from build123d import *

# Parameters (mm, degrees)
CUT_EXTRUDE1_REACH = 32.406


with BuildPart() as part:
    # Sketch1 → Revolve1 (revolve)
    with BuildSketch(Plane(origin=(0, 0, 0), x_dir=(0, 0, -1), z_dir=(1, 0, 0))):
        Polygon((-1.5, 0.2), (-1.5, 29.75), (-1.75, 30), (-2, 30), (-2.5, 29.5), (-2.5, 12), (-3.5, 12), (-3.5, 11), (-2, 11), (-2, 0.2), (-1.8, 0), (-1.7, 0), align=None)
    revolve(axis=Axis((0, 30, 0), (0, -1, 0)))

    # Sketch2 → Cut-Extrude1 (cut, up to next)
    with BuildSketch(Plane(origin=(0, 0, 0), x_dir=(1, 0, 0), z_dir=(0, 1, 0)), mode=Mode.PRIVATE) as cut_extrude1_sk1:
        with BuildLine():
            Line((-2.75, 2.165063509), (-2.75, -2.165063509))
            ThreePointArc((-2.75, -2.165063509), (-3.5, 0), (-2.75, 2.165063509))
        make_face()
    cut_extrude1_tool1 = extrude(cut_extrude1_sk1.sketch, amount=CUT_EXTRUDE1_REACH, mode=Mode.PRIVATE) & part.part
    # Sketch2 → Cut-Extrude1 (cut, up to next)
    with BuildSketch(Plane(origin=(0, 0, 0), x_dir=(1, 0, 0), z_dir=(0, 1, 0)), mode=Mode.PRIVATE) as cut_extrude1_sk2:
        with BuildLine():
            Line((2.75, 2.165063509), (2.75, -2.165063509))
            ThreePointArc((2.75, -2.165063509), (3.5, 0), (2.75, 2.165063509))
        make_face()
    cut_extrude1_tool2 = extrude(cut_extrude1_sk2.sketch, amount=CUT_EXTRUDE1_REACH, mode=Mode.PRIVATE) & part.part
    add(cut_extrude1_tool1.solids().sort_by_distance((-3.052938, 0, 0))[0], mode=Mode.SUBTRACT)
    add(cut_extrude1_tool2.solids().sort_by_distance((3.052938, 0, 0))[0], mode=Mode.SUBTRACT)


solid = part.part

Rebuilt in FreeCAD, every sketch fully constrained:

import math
import FreeCAD as App
import Part
import Sketcher

V = App.Vector

doc = App.newDocument("Part")
body = doc.addObject("PartDesign::Body", "Body")

sketch1 = body.newObject("Sketcher::SketchObject", "Sketch")
sketch1.AttachmentSupport = (doc.getObject("YZ_Plane"), [""])
sketch1.MapMode = "FlatFace"
sketch1.addGeometry([
    Part.LineSegment(V(0.2, 1.5, 0), V(29.75, 1.5, 0)),
    Part.LineSegment(V(29.75, 1.5, 0), V(30, 1.75, 0)),
    Part.LineSegment(V(30, 1.75, 0), V(30, 2, 0)),
    Part.LineSegment(V(30, 2, 0), V(29.5, 2.5, 0)),
    Part.LineSegment(V(29.5, 2.5, 0), V(12, 2.5, 0)),
    Part.LineSegment(V(12, 2.5, 0), V(12, 3.5, 0)),
    Part.LineSegment(V(12, 3.5, 0), V(11, 3.5, 0)),
    Part.LineSegment(V(11, 3.5, 0), V(11, 2, 0)),
    Part.LineSegment(V(11, 2, 0), V(0.2, 2, 0)),
    Part.LineSegment(V(0.2, 2, 0), V(0, 1.8, 0)),
    Part.LineSegment(V(0, 1.8, 0), V(0, 1.7, 0)),
    Part.LineSegment(V(0, 1.7, 0), V(0.2, 1.5, 0)),
], False)
sketch1.addConstraint([
    Sketcher.Constraint("Coincident", 0, 2, 1, 1),
    Sketcher.Constraint("Coincident", 1, 2, 2, 1),
    Sketcher.Constraint("Coincident", 2, 2, 3, 1),
    Sketcher.Constraint("Coincident", 3, 2, 4, 1),
    Sketcher.Constraint("Coincident", 4, 2, 5, 1),
    Sketcher.Constraint("Coincident", 5, 2, 6, 1),
    Sketcher.Constraint("Coincident", 6, 2, 7, 1),
    Sketcher.Constraint("Coincident", 7, 2, 8, 1),
    Sketcher.Constraint("Coincident", 8, 2, 9, 1),
    Sketcher.Constraint("Coincident", 9, 2, 10, 1),
    Sketcher.Constraint("Coincident", 10, 2, 11, 1),
    Sketcher.Constraint("Coincident", 11, 2, 0, 1),
    Sketcher.Constraint("Horizontal", 0),
    Sketcher.Constraint("Vertical", 2),
    Sketcher.Constraint("Horizontal", 4),
    Sketcher.Constraint("Vertical", 5),
    Sketcher.Constraint("Horizontal", 6),
    Sketcher.Constraint("Vertical", 7),
    Sketcher.Constraint("Horizontal", 8),
    Sketcher.Constraint("Vertical", 10),
    Sketcher.Constraint("PointOnObject", 9, 2, -2),
    Sketcher.Constraint("Perpendicular", 1, 3),
    Sketcher.Constraint("Perpendicular", 3, 9),
    Sketcher.Constraint("Perpendicular", 9, 11),
    Sketcher.Constraint("Horizontal", 2, 2, 7, 2),
    Sketcher.Constraint("Vertical", 8, 2, 11, 2),
    Sketcher.Constraint("Equal", 6, 5),
    Sketcher.Constraint("Equal", 9, 11),
    Sketcher.Constraint("DistanceX", 6, 2, 6, 1, 1.0),
    Sketcher.Constraint("DistanceX", 4, 2, 4, 1, 17.5),
    Sketcher.Constraint("DistanceX", 8, 2, 8, 1, 10.8),
    Sketcher.Constraint("DistanceY", 7, 2, 7, 1, 1.5),
    Sketcher.Constraint("DistanceY", 10, 2, 10, 1, 0.1),
    Sketcher.Constraint("DistanceX", -1, 1, 1, 2, 30.0),
    Sketcher.Constraint("DistanceY", -1, 1, 2, 2, 2.0),
    Sketcher.Constraint("DistanceX", 0, 1, 0, 2, 29.55),
])
revolution = body.newObject("PartDesign::Revolution", "Revolution")
revolution.Profile = sketch1
revolution.ReferenceAxis = (sketch1, ["H_Axis"])
revolution.Angle = 360

sketch2 = body.newObject("Sketcher::SketchObject", "Sketch001")
sketch2.AttachmentSupport = (doc.getObject("XZ_Plane"), [""])
sketch2.MapMode = "FlatFace"
sketch2.addGeometry([
    Part.LineSegment(V(-2.75, 2.165064, 0), V(-2.75, -2.165064, 0)),
    Part.ArcOfCircle(Part.Circle(V(0, 0, 0), V(0, 0, 1), 3.5), math.radians(141.786789), math.radians(218.213211)),
], False)
sketch2.addConstraint([
    Sketcher.Constraint("Coincident", 0, 1, 1, 1),
    Sketcher.Constraint("Coincident", 1, 2, 0, 2),
    Sketcher.Constraint("Vertical", 0),
    Sketcher.Constraint("Coincident", 1, 3, -1, 1),
    Sketcher.Constraint("Radius", 1, 3.5),
    Sketcher.Constraint("DistanceX", 0, 1, -1, 1, 2.75),
])
pocket1 = body.newObject("PartDesign::Pocket", "Pocket")
pocket1.Profile = sketch2
pocket1.Length = 12

sketch3 = body.newObject("Sketcher::SketchObject", "Sketch002")
sketch3.AttachmentSupport = (doc.getObject("XZ_Plane"), [""])
sketch3.MapMode = "FlatFace"
sketch3.addGeometry([
    Part.LineSegment(V(2.75, -2.165064, 0), V(2.75, 2.165064, 0)),
    Part.ArcOfCircle(Part.Circle(V(0, 0, 0), V(0, 0, 1), 3.5), math.radians(-38.213211), math.radians(38.213211)),
], False)
sketch3.addConstraint([
    Sketcher.Constraint("Coincident", 0, 1, 1, 1),
    Sketcher.Constraint("Coincident", 1, 2, 0, 2),
    Sketcher.Constraint("Vertical", 0),
    Sketcher.Constraint("Coincident", 1, 3, -1, 1),
    Sketcher.Constraint("Radius", 1, 3.5),
    Sketcher.Constraint("DistanceX", -1, 1, 0, 1, 2.75),
])
pocket2 = body.newObject("PartDesign::Pocket", "Pocket001")
pocket2.Profile = sketch3
pocket2.Length = 12

doc.recompute()
